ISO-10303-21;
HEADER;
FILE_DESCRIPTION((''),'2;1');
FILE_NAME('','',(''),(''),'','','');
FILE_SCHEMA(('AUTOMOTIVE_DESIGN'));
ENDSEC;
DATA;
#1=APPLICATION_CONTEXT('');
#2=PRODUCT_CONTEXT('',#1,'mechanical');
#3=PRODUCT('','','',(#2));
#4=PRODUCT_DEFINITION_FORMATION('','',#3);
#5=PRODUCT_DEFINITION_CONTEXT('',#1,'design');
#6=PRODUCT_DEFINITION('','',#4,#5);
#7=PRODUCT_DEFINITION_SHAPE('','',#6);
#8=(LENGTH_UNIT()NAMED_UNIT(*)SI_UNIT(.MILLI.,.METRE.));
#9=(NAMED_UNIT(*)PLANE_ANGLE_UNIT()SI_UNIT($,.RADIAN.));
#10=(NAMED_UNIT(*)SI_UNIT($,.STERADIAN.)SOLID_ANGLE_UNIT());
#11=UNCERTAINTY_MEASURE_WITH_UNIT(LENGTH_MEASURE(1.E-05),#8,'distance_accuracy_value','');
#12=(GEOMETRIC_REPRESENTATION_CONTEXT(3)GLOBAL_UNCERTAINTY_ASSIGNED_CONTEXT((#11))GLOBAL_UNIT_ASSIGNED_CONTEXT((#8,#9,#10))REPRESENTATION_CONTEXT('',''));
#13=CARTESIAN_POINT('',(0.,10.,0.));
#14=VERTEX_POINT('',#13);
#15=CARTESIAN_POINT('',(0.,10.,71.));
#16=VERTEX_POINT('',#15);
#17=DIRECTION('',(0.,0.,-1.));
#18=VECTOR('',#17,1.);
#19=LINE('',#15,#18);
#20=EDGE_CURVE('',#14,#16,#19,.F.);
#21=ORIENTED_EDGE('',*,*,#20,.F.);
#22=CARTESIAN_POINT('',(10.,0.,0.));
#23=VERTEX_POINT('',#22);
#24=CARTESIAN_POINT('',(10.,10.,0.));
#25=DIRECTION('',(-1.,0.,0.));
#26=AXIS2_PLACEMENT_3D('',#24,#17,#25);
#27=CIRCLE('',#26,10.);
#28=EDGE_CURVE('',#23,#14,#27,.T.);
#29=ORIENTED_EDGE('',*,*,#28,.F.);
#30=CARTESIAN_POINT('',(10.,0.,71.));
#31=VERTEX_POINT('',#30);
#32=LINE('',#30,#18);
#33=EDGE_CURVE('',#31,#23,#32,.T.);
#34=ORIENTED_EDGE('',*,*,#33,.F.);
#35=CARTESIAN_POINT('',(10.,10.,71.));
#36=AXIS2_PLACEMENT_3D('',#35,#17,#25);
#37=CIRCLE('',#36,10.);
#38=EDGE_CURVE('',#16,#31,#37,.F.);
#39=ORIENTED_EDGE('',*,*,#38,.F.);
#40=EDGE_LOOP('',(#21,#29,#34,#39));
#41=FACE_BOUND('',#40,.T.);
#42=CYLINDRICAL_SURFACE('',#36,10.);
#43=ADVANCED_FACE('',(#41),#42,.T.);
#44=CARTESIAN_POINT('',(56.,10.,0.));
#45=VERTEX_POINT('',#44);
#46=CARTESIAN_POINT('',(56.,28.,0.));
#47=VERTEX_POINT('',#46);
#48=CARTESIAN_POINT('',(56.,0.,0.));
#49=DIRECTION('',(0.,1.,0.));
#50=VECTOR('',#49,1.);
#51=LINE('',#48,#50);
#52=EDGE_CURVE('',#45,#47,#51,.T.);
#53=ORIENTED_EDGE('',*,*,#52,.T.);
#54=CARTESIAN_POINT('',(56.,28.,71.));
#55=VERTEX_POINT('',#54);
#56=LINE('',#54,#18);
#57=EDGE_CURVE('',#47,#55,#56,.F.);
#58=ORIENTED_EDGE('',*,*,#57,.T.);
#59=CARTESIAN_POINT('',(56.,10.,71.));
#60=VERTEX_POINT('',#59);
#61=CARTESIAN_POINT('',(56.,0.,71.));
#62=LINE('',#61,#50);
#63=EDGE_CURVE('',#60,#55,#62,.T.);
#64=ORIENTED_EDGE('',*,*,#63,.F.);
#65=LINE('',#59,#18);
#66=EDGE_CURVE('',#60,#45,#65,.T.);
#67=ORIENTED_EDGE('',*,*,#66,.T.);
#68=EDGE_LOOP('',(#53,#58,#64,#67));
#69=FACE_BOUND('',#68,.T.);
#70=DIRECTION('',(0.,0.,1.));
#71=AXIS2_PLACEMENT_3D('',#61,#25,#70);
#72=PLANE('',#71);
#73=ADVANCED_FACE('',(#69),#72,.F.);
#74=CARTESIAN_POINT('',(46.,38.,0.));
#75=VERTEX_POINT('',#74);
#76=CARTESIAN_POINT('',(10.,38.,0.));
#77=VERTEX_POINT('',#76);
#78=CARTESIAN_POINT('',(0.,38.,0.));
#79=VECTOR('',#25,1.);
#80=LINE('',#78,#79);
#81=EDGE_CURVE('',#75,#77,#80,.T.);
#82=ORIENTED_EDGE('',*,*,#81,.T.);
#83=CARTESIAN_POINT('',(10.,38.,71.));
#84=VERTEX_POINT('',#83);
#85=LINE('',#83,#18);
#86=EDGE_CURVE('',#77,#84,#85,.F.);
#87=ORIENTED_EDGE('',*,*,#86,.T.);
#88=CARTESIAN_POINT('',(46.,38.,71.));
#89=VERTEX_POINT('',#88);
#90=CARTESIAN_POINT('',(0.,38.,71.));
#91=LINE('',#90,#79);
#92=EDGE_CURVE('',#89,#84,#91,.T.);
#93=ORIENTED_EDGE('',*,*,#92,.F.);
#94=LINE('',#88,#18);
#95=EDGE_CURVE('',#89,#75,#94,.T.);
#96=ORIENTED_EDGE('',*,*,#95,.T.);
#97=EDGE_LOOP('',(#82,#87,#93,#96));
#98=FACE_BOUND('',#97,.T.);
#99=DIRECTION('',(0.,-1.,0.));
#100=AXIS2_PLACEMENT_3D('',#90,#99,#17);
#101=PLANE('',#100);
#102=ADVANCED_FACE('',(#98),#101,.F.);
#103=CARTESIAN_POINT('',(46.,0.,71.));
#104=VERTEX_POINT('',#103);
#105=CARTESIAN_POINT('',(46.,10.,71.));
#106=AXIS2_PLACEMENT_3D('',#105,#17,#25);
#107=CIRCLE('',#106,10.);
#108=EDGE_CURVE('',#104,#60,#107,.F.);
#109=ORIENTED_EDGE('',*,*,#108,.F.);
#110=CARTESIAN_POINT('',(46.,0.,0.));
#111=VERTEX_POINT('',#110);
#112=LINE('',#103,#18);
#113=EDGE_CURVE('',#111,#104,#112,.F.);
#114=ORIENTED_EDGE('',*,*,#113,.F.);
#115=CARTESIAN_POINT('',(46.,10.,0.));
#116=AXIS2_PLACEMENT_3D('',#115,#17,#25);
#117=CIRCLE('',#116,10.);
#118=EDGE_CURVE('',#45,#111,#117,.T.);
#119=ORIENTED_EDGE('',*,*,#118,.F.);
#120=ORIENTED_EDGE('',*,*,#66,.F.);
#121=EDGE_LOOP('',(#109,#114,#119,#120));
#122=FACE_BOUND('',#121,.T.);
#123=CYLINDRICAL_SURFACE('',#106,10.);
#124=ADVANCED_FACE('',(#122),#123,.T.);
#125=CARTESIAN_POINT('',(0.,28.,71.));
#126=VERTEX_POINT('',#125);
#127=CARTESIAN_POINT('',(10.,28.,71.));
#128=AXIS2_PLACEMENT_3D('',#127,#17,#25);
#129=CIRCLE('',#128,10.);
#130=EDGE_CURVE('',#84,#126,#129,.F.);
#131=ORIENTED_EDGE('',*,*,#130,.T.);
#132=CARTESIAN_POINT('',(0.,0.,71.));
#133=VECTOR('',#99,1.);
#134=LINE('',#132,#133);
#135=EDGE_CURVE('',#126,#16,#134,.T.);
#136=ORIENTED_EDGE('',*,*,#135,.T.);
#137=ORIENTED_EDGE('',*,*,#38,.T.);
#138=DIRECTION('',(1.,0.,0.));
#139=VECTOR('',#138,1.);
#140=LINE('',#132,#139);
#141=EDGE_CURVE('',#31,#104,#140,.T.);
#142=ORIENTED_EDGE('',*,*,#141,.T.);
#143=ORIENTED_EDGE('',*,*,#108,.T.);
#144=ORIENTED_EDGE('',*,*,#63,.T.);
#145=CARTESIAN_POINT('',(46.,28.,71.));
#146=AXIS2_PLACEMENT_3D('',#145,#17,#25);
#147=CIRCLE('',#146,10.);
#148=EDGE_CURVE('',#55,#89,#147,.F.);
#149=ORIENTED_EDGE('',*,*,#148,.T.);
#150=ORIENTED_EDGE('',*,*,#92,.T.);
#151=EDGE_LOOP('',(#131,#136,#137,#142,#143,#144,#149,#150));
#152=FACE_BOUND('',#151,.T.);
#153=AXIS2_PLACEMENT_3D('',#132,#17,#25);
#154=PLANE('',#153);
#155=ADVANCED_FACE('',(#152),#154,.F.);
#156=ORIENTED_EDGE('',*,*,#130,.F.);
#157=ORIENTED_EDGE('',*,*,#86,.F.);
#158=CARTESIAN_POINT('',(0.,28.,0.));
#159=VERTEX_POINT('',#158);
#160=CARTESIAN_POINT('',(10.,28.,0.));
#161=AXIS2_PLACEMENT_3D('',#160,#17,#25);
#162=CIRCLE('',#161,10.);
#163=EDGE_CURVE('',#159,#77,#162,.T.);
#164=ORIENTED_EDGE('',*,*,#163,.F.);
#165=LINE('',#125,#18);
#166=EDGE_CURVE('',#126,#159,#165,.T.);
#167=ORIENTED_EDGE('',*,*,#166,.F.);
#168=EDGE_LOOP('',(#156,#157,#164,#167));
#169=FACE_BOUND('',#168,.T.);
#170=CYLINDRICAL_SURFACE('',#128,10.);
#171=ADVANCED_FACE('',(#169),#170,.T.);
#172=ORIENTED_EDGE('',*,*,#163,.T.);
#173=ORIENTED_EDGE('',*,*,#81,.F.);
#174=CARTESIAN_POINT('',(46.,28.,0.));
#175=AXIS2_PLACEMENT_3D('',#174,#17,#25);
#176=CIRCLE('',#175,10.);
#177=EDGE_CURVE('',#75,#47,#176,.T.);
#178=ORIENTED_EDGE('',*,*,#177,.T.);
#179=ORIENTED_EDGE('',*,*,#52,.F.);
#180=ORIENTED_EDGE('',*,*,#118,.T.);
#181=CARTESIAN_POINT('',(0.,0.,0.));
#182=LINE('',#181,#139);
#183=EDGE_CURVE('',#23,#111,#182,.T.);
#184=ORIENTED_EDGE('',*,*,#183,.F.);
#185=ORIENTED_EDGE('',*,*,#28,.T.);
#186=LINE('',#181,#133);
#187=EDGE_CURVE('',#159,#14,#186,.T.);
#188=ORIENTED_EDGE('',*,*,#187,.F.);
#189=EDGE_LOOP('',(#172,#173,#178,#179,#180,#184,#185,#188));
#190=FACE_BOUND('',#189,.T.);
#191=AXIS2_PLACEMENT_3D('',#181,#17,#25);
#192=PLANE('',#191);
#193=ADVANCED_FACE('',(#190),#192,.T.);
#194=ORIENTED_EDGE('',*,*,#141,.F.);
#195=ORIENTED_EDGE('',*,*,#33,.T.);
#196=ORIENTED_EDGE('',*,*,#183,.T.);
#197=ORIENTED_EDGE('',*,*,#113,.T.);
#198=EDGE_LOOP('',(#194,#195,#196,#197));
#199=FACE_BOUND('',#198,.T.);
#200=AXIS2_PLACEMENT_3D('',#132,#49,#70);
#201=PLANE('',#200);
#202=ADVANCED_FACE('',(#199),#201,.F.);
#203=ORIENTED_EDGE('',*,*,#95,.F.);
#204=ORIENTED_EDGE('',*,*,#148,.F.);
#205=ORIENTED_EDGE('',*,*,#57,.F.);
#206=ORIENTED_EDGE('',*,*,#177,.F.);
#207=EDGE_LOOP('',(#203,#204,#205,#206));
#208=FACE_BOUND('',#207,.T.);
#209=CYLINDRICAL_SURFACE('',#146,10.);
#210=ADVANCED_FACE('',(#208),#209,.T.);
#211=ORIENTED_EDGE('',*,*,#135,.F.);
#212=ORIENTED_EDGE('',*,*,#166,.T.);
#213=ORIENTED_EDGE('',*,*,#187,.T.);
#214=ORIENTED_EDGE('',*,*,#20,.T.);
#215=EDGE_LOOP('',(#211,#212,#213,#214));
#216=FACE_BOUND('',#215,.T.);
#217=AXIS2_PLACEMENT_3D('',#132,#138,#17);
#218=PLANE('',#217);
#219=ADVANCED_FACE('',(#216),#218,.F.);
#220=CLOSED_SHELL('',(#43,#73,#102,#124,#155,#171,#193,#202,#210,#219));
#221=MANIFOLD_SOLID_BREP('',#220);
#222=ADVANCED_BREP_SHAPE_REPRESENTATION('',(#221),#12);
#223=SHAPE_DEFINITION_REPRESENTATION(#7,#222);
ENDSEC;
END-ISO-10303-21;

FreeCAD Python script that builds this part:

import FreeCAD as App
import Part
import Sketcher
Q = App.Units.Quantity


def edges_at(feature, points):
    """Names of the edges that pass closest to the given points."""
    edges = feature.Shape.Edges
    near = lambda p: min(range(len(edges)), key=lambda i: edges[i].distToShape(Part.Vertex(*p))[0])
    return sorted({f"Edge{near(p) + 1}" for p in points})


def add_polygon(sketch, points):
    """Adds a closed chain of lines whose ends are joined by coincident constraints."""
    first, n = sketch.GeometryCount, len(points)
    for a, b in zip(points, points[1:] + points[:1]):
        sketch.addGeometry(Part.LineSegment(App.Vector(*a, 0), App.Vector(*b, 0)), False)
    for i in range(n):
        sketch.addConstraint(Sketcher.Constraint("Coincident", first + i, 2, first + (i + 1) % n, 1))

doc = App.newDocument("Part")
body = doc.addObject("PartDesign::Body", "Body")

# Sketch on XY plane
sketch1 = doc.addObject("Sketcher::SketchObject", "Sketch")
body.addObject(sketch1)
sketch1.AttachmentSupport = (doc.XY_Plane, [""])
sketch1.MapMode = "FlatFace"
add_polygon(sketch1, [(0, 38), (0, 0), (56, 0), (56, 38)])  # lines 0-3
sketch1.addConstraint(Sketcher.Constraint("Vertical", 0))
sketch1.addConstraint(Sketcher.Constraint("Horizontal", 1))
sketch1.addConstraint(Sketcher.Constraint("Vertical", 2))
sketch1.addConstraint(Sketcher.Constraint("Horizontal", 3))
sketch1.addConstraint(Sketcher.Constraint("Coincident", 0, 2, -1, 1))
sketch1.addConstraint(Sketcher.Constraint("DistanceX", 1, 1, 1, 2, Q("56 mm")))
sketch1.addConstraint(Sketcher.Constraint("DistanceY", 0, 2, 0, 1, Q("38 mm")))
pad1 = doc.addObject("PartDesign::Pad", "Pad")
body.addObject(pad1)
pad1.Profile = sketch1
pad1.Length = 71
doc.recompute()

fillet = doc.addObject("PartDesign::Fillet", "Fillet")
body.addObject(fillet)
fillet.Base = (pad1, edges_at(pad1, [
    (0, 38, 35.5),
    (56, 38, 35.5),
    (56, 0, 35.5),
    (0, 0, 35.5),
]))
fillet.Radius = 10

doc.recompute()
